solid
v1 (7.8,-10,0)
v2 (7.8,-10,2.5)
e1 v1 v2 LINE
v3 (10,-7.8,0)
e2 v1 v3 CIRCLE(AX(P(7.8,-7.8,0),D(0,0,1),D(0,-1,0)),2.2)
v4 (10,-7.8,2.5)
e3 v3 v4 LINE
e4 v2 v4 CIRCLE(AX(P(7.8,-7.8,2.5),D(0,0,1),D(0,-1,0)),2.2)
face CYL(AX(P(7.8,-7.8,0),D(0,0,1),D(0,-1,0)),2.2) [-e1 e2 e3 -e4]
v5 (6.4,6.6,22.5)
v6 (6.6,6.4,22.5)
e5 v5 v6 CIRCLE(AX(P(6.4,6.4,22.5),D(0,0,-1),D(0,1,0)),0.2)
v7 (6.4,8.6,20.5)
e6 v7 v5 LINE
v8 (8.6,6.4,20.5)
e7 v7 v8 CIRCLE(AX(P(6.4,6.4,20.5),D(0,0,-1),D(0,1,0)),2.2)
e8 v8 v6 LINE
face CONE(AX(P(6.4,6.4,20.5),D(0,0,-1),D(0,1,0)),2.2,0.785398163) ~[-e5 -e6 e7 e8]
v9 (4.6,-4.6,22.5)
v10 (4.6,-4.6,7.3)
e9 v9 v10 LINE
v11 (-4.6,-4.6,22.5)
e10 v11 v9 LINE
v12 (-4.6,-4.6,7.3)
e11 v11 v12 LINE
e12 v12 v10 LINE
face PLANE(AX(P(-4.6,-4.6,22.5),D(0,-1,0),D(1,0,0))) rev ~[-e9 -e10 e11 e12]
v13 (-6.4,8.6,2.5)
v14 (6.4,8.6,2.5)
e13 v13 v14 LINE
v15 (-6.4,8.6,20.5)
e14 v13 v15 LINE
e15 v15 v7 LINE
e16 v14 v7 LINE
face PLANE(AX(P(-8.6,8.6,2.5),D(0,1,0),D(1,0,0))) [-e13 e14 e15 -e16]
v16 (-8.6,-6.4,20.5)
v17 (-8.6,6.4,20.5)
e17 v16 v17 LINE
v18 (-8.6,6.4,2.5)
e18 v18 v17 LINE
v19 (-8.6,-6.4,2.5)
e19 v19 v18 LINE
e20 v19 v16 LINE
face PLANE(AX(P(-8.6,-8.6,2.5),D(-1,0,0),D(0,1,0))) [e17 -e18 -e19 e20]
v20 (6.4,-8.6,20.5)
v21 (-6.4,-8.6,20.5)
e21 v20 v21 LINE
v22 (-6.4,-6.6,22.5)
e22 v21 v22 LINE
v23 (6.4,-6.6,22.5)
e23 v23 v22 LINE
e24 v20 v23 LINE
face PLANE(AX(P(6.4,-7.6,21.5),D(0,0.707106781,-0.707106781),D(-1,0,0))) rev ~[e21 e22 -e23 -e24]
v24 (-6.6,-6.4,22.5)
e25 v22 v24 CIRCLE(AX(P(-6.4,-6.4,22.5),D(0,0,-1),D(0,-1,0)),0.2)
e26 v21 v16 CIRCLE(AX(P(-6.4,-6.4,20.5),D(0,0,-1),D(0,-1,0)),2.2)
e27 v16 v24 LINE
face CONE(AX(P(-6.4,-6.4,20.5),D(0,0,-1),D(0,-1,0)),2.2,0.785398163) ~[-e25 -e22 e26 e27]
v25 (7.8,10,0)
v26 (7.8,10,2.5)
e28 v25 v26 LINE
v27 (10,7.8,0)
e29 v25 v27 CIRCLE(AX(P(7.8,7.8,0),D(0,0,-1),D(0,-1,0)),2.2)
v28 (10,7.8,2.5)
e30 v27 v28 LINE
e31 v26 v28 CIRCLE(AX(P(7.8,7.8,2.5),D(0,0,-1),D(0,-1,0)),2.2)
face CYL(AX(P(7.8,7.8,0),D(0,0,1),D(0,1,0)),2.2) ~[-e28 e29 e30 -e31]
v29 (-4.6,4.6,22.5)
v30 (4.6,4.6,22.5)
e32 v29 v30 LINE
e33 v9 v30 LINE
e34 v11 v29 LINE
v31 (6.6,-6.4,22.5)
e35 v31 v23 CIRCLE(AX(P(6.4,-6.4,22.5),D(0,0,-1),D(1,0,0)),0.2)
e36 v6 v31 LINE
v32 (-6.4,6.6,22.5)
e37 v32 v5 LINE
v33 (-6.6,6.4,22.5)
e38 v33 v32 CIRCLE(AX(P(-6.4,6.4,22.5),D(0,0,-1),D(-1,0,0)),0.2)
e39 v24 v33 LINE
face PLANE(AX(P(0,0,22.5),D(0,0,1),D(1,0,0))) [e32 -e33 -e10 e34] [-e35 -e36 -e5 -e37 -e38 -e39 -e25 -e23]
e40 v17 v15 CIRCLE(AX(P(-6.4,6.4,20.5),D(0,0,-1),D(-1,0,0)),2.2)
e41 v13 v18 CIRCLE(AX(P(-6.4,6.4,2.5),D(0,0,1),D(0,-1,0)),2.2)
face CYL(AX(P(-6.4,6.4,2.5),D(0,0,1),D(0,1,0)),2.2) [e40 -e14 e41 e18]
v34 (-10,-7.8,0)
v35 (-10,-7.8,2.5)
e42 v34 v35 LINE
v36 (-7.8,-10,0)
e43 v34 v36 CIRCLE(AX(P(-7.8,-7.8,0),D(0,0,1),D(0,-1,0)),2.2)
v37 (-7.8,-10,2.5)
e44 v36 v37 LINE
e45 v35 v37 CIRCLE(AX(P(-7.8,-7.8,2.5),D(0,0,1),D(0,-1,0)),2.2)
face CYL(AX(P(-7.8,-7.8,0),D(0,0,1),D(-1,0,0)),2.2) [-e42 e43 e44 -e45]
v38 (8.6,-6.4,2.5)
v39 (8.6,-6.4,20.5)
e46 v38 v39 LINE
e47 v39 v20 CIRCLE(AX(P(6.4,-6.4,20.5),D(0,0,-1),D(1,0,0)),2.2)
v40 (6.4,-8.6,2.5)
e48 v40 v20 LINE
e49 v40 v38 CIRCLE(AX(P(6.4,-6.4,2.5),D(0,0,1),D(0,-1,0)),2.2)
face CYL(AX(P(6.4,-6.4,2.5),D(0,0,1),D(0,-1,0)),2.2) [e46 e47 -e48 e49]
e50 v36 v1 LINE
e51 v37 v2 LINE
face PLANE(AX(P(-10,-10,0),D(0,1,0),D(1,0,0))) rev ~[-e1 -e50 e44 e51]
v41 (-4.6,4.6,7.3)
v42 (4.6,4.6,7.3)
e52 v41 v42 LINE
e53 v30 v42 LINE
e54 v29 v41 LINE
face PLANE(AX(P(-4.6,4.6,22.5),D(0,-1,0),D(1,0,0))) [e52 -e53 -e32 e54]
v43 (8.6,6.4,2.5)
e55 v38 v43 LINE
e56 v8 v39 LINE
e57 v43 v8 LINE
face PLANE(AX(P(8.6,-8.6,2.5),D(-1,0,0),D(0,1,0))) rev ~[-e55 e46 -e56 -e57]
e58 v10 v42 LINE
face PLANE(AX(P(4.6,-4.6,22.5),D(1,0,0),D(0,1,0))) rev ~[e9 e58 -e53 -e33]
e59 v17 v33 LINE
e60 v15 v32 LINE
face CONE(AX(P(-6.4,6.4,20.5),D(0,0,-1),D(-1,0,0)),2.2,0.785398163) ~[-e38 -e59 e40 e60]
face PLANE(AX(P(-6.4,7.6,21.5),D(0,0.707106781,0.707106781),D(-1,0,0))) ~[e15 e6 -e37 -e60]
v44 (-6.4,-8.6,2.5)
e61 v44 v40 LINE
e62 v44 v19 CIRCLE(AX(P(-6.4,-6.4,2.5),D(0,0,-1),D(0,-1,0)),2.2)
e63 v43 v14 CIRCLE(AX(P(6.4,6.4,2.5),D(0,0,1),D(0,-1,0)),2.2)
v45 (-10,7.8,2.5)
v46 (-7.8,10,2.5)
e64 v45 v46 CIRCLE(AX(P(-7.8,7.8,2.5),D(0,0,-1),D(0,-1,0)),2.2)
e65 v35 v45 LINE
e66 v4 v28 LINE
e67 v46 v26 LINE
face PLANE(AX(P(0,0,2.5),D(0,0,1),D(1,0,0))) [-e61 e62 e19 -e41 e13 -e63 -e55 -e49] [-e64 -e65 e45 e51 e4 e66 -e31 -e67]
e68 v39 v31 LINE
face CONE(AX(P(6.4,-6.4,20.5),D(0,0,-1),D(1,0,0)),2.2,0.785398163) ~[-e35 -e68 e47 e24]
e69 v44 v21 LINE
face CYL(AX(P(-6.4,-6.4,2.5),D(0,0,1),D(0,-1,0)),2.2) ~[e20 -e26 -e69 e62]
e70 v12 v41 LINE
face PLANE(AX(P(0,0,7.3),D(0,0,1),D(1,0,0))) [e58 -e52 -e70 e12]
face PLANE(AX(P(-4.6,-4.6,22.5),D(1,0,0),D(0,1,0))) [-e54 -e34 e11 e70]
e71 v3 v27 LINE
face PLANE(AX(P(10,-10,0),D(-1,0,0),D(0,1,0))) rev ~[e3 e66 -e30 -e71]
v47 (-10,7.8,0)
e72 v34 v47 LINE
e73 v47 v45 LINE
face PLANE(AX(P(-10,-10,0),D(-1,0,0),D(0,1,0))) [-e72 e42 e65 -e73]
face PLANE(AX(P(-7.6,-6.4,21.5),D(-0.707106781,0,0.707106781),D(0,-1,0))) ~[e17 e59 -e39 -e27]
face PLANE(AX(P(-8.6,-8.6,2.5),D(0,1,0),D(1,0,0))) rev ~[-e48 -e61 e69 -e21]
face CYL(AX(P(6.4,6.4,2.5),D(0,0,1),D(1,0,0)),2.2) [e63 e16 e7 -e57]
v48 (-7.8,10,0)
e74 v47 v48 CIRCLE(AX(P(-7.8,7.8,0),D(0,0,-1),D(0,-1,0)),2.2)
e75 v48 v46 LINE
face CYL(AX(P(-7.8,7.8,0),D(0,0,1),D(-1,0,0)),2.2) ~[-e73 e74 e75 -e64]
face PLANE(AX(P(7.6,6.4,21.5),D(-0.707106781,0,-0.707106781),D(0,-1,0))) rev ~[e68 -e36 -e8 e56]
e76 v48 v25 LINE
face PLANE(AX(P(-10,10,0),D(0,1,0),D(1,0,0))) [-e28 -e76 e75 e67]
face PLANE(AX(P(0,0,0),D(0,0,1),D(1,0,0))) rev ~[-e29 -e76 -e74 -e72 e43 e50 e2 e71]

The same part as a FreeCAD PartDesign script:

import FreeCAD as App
import Part
import Sketcher


def edges_at(feature, points):
    """Names of the edges that pass closest to the given points."""
    edges = feature.Shape.Edges
    near = lambda p: min(range(len(edges)), key=lambda i: edges[i].distToShape(Part.Vertex(*p))[0])
    return sorted({f"Edge{near(p) + 1}" for p in points})

doc = App.newDocument("Part")
body = doc.addObject("PartDesign::Body", "Body")

# Sketch on XY plane
sketch1 = body.newObject("Sketcher::SketchObject", "Sketch")
sketch1.AttachmentSupport = (doc.getObject("XY_Plane"), [""])
sketch1.MapMode = "FlatFace"
sketch1.addGeometry([
    Part.LineSegment(App.Vector(-10, 10, 0), App.Vector(-10, -10, 0)),
    Part.LineSegment(App.Vector(-10, -10, 0), App.Vector(10, -10, 0)),
    Part.LineSegment(App.Vector(10, -10, 0), App.Vector(10, 10, 0)),
    Part.LineSegment(App.Vector(10, 10, 0), App.Vector(-10, 10, 0)),
], False)
sketch1.addConstraint([
    Sketcher.Constraint("Coincident", 0, 2, 1, 1),
    Sketcher.Constraint("Coincident", 1, 2, 2, 1),
    Sketcher.Constraint("Coincident", 2, 2, 3, 1),
    Sketcher.Constraint("Coincident", 3, 2, 0, 1),
    Sketcher.Constraint("Vertical", 0),
    Sketcher.Constraint("Horizontal", 1),
    Sketcher.Constraint("Vertical", 2),
    Sketcher.Constraint("Horizontal", 3),
    Sketcher.Constraint("Symmetric", 0, 2, 2, 2, -1, 1),
    Sketcher.Constraint("Equal", 3, 0),
    Sketcher.Constraint("DistanceX", 1, 1, 1, 2, 20.0),
])
pad1 = body.newObject("PartDesign::Pad", "Pad")
pad1.Profile = sketch1
pad1.Length = 2.5

# Sketch on XY plane
sketch2 = body.newObject("Sketcher::SketchObject", "Sketch001")
sketch2.AttachmentSupport = (doc.getObject("XY_Plane"), [""])
sketch2.MapMode = "FlatFace"
sketch2.AttachmentOffset = App.Placement(App.Vector(0, 0, 2.5), App.Rotation())
sketch2.addGeometry([
    Part.LineSegment(App.Vector(-9, 9, 0), App.Vector(-9, -9, 0)),
    Part.LineSegment(App.Vector(-9, -9, 0), App.Vector(9, -9, 0)),
    Part.LineSegment(App.Vector(9, -9, 0), App.Vector(9, 9, 0)),
    Part.LineSegment(App.Vector(9, 9, 0), App.Vector(-9, 9, 0)),
], False)
sketch2.addConstraint([
    Sketcher.Constraint("Coincident", 0, 2, 1, 1),
    Sketcher.Constraint("Coincident", 1, 2, 2, 1),
    Sketcher.Constraint("Coincident", 2, 2, 3, 1),
    Sketcher.Constraint("Coincident", 3, 2, 0, 1),
    Sketcher.Constraint("Vertical", 0),
    Sketcher.Constraint("Horizontal", 1),
    Sketcher.Constraint("Vertical", 2),
    Sketcher.Constraint("Horizontal", 3),
    Sketcher.Constraint("Symmetric", 0, 2, 2, 2, -1, 1),
    Sketcher.Constraint("Equal", 3, 0),
    Sketcher.Constraint("DistanceX", 1, 1, 1, 2, 17.2),
])
pad2 = body.newObject("PartDesign::Pad", "Pad001")
pad2.Profile = sketch2
pad2.Length = 20
doc.recompute()

fillet = body.newObject("PartDesign::Fillet", "Fillet")
fillet.Base = (pad2, edges_at(pad2, [
    (-8.6, -8.6, 12.5),
    (-8.6, 8.6, 12.5),
    (8.6, 8.6, 12.5),
    (8.6, -8.6, 12.5),
    (10, -10, 1.25),
    (10, 10, 1.25),
    (-10, -10, 1.25),
    (-10, 10, 1.25),
]))
fillet.Radius = 2.2

# Sketch on XY plane
sketch3 = body.newObject("Sketcher::SketchObject", "Sketch002")
sketch3.AttachmentSupport = (doc.getObject("XY_Plane"), [""])
sketch3.MapMode = "FlatFace"
sketch3.AttachmentOffset = App.Placement(App.Vector(0, 0, 22.5), App.Rotation())
sketch3.addGeometry([
    Part.LineSegment(App.Vector(-5, 5, 0), App.Vector(-5, -5, 0)),
    Part.LineSegment(App.Vector(-5, -5, 0), App.Vector(5, -5, 0)),
    Part.LineSegment(App.Vector(5, -5, 0), App.Vector(5, 5, 0)),
    Part.LineSegment(App.Vector(5, 5, 0), App.Vector(-5, 5, 0)),
], False)
sketch3.addConstraint([
    Sketcher.Constraint("Coincident", 0, 2, 1, 1),
    Sketcher.Constraint("Coincident", 1, 2, 2, 1),
    Sketcher.Constraint("Coincident", 2, 2, 3, 1),
    Sketcher.Constraint("Coincident", 3, 2, 0, 1),
    Sketcher.Constraint("Vertical", 0),
    Sketcher.Constraint("Horizontal", 1),
    Sketcher.Constraint("Vertical", 2),
    Sketcher.Constraint("Horizontal", 3),
    Sketcher.Constraint("Symmetric", 0, 2, 2, 2, -1, 1),
    Sketcher.Constraint("Equal", 3, 0),
    Sketcher.Constraint("DistanceX", 1, 1, 1, 2, 9.2),
])
pocket1 = body.newObject("PartDesign::Pocket", "Pocket")
pocket1.Profile = sketch3
pocket1.Length = 15.2
doc.recompute()

chamfer = body.newObject("PartDesign::Chamfer", "Chamfer")
chamfer.Base = (pocket1, edges_at(pocket1, [(0, 8.6, 22.5)]))
chamfer.Size = 2

doc.recompute()
